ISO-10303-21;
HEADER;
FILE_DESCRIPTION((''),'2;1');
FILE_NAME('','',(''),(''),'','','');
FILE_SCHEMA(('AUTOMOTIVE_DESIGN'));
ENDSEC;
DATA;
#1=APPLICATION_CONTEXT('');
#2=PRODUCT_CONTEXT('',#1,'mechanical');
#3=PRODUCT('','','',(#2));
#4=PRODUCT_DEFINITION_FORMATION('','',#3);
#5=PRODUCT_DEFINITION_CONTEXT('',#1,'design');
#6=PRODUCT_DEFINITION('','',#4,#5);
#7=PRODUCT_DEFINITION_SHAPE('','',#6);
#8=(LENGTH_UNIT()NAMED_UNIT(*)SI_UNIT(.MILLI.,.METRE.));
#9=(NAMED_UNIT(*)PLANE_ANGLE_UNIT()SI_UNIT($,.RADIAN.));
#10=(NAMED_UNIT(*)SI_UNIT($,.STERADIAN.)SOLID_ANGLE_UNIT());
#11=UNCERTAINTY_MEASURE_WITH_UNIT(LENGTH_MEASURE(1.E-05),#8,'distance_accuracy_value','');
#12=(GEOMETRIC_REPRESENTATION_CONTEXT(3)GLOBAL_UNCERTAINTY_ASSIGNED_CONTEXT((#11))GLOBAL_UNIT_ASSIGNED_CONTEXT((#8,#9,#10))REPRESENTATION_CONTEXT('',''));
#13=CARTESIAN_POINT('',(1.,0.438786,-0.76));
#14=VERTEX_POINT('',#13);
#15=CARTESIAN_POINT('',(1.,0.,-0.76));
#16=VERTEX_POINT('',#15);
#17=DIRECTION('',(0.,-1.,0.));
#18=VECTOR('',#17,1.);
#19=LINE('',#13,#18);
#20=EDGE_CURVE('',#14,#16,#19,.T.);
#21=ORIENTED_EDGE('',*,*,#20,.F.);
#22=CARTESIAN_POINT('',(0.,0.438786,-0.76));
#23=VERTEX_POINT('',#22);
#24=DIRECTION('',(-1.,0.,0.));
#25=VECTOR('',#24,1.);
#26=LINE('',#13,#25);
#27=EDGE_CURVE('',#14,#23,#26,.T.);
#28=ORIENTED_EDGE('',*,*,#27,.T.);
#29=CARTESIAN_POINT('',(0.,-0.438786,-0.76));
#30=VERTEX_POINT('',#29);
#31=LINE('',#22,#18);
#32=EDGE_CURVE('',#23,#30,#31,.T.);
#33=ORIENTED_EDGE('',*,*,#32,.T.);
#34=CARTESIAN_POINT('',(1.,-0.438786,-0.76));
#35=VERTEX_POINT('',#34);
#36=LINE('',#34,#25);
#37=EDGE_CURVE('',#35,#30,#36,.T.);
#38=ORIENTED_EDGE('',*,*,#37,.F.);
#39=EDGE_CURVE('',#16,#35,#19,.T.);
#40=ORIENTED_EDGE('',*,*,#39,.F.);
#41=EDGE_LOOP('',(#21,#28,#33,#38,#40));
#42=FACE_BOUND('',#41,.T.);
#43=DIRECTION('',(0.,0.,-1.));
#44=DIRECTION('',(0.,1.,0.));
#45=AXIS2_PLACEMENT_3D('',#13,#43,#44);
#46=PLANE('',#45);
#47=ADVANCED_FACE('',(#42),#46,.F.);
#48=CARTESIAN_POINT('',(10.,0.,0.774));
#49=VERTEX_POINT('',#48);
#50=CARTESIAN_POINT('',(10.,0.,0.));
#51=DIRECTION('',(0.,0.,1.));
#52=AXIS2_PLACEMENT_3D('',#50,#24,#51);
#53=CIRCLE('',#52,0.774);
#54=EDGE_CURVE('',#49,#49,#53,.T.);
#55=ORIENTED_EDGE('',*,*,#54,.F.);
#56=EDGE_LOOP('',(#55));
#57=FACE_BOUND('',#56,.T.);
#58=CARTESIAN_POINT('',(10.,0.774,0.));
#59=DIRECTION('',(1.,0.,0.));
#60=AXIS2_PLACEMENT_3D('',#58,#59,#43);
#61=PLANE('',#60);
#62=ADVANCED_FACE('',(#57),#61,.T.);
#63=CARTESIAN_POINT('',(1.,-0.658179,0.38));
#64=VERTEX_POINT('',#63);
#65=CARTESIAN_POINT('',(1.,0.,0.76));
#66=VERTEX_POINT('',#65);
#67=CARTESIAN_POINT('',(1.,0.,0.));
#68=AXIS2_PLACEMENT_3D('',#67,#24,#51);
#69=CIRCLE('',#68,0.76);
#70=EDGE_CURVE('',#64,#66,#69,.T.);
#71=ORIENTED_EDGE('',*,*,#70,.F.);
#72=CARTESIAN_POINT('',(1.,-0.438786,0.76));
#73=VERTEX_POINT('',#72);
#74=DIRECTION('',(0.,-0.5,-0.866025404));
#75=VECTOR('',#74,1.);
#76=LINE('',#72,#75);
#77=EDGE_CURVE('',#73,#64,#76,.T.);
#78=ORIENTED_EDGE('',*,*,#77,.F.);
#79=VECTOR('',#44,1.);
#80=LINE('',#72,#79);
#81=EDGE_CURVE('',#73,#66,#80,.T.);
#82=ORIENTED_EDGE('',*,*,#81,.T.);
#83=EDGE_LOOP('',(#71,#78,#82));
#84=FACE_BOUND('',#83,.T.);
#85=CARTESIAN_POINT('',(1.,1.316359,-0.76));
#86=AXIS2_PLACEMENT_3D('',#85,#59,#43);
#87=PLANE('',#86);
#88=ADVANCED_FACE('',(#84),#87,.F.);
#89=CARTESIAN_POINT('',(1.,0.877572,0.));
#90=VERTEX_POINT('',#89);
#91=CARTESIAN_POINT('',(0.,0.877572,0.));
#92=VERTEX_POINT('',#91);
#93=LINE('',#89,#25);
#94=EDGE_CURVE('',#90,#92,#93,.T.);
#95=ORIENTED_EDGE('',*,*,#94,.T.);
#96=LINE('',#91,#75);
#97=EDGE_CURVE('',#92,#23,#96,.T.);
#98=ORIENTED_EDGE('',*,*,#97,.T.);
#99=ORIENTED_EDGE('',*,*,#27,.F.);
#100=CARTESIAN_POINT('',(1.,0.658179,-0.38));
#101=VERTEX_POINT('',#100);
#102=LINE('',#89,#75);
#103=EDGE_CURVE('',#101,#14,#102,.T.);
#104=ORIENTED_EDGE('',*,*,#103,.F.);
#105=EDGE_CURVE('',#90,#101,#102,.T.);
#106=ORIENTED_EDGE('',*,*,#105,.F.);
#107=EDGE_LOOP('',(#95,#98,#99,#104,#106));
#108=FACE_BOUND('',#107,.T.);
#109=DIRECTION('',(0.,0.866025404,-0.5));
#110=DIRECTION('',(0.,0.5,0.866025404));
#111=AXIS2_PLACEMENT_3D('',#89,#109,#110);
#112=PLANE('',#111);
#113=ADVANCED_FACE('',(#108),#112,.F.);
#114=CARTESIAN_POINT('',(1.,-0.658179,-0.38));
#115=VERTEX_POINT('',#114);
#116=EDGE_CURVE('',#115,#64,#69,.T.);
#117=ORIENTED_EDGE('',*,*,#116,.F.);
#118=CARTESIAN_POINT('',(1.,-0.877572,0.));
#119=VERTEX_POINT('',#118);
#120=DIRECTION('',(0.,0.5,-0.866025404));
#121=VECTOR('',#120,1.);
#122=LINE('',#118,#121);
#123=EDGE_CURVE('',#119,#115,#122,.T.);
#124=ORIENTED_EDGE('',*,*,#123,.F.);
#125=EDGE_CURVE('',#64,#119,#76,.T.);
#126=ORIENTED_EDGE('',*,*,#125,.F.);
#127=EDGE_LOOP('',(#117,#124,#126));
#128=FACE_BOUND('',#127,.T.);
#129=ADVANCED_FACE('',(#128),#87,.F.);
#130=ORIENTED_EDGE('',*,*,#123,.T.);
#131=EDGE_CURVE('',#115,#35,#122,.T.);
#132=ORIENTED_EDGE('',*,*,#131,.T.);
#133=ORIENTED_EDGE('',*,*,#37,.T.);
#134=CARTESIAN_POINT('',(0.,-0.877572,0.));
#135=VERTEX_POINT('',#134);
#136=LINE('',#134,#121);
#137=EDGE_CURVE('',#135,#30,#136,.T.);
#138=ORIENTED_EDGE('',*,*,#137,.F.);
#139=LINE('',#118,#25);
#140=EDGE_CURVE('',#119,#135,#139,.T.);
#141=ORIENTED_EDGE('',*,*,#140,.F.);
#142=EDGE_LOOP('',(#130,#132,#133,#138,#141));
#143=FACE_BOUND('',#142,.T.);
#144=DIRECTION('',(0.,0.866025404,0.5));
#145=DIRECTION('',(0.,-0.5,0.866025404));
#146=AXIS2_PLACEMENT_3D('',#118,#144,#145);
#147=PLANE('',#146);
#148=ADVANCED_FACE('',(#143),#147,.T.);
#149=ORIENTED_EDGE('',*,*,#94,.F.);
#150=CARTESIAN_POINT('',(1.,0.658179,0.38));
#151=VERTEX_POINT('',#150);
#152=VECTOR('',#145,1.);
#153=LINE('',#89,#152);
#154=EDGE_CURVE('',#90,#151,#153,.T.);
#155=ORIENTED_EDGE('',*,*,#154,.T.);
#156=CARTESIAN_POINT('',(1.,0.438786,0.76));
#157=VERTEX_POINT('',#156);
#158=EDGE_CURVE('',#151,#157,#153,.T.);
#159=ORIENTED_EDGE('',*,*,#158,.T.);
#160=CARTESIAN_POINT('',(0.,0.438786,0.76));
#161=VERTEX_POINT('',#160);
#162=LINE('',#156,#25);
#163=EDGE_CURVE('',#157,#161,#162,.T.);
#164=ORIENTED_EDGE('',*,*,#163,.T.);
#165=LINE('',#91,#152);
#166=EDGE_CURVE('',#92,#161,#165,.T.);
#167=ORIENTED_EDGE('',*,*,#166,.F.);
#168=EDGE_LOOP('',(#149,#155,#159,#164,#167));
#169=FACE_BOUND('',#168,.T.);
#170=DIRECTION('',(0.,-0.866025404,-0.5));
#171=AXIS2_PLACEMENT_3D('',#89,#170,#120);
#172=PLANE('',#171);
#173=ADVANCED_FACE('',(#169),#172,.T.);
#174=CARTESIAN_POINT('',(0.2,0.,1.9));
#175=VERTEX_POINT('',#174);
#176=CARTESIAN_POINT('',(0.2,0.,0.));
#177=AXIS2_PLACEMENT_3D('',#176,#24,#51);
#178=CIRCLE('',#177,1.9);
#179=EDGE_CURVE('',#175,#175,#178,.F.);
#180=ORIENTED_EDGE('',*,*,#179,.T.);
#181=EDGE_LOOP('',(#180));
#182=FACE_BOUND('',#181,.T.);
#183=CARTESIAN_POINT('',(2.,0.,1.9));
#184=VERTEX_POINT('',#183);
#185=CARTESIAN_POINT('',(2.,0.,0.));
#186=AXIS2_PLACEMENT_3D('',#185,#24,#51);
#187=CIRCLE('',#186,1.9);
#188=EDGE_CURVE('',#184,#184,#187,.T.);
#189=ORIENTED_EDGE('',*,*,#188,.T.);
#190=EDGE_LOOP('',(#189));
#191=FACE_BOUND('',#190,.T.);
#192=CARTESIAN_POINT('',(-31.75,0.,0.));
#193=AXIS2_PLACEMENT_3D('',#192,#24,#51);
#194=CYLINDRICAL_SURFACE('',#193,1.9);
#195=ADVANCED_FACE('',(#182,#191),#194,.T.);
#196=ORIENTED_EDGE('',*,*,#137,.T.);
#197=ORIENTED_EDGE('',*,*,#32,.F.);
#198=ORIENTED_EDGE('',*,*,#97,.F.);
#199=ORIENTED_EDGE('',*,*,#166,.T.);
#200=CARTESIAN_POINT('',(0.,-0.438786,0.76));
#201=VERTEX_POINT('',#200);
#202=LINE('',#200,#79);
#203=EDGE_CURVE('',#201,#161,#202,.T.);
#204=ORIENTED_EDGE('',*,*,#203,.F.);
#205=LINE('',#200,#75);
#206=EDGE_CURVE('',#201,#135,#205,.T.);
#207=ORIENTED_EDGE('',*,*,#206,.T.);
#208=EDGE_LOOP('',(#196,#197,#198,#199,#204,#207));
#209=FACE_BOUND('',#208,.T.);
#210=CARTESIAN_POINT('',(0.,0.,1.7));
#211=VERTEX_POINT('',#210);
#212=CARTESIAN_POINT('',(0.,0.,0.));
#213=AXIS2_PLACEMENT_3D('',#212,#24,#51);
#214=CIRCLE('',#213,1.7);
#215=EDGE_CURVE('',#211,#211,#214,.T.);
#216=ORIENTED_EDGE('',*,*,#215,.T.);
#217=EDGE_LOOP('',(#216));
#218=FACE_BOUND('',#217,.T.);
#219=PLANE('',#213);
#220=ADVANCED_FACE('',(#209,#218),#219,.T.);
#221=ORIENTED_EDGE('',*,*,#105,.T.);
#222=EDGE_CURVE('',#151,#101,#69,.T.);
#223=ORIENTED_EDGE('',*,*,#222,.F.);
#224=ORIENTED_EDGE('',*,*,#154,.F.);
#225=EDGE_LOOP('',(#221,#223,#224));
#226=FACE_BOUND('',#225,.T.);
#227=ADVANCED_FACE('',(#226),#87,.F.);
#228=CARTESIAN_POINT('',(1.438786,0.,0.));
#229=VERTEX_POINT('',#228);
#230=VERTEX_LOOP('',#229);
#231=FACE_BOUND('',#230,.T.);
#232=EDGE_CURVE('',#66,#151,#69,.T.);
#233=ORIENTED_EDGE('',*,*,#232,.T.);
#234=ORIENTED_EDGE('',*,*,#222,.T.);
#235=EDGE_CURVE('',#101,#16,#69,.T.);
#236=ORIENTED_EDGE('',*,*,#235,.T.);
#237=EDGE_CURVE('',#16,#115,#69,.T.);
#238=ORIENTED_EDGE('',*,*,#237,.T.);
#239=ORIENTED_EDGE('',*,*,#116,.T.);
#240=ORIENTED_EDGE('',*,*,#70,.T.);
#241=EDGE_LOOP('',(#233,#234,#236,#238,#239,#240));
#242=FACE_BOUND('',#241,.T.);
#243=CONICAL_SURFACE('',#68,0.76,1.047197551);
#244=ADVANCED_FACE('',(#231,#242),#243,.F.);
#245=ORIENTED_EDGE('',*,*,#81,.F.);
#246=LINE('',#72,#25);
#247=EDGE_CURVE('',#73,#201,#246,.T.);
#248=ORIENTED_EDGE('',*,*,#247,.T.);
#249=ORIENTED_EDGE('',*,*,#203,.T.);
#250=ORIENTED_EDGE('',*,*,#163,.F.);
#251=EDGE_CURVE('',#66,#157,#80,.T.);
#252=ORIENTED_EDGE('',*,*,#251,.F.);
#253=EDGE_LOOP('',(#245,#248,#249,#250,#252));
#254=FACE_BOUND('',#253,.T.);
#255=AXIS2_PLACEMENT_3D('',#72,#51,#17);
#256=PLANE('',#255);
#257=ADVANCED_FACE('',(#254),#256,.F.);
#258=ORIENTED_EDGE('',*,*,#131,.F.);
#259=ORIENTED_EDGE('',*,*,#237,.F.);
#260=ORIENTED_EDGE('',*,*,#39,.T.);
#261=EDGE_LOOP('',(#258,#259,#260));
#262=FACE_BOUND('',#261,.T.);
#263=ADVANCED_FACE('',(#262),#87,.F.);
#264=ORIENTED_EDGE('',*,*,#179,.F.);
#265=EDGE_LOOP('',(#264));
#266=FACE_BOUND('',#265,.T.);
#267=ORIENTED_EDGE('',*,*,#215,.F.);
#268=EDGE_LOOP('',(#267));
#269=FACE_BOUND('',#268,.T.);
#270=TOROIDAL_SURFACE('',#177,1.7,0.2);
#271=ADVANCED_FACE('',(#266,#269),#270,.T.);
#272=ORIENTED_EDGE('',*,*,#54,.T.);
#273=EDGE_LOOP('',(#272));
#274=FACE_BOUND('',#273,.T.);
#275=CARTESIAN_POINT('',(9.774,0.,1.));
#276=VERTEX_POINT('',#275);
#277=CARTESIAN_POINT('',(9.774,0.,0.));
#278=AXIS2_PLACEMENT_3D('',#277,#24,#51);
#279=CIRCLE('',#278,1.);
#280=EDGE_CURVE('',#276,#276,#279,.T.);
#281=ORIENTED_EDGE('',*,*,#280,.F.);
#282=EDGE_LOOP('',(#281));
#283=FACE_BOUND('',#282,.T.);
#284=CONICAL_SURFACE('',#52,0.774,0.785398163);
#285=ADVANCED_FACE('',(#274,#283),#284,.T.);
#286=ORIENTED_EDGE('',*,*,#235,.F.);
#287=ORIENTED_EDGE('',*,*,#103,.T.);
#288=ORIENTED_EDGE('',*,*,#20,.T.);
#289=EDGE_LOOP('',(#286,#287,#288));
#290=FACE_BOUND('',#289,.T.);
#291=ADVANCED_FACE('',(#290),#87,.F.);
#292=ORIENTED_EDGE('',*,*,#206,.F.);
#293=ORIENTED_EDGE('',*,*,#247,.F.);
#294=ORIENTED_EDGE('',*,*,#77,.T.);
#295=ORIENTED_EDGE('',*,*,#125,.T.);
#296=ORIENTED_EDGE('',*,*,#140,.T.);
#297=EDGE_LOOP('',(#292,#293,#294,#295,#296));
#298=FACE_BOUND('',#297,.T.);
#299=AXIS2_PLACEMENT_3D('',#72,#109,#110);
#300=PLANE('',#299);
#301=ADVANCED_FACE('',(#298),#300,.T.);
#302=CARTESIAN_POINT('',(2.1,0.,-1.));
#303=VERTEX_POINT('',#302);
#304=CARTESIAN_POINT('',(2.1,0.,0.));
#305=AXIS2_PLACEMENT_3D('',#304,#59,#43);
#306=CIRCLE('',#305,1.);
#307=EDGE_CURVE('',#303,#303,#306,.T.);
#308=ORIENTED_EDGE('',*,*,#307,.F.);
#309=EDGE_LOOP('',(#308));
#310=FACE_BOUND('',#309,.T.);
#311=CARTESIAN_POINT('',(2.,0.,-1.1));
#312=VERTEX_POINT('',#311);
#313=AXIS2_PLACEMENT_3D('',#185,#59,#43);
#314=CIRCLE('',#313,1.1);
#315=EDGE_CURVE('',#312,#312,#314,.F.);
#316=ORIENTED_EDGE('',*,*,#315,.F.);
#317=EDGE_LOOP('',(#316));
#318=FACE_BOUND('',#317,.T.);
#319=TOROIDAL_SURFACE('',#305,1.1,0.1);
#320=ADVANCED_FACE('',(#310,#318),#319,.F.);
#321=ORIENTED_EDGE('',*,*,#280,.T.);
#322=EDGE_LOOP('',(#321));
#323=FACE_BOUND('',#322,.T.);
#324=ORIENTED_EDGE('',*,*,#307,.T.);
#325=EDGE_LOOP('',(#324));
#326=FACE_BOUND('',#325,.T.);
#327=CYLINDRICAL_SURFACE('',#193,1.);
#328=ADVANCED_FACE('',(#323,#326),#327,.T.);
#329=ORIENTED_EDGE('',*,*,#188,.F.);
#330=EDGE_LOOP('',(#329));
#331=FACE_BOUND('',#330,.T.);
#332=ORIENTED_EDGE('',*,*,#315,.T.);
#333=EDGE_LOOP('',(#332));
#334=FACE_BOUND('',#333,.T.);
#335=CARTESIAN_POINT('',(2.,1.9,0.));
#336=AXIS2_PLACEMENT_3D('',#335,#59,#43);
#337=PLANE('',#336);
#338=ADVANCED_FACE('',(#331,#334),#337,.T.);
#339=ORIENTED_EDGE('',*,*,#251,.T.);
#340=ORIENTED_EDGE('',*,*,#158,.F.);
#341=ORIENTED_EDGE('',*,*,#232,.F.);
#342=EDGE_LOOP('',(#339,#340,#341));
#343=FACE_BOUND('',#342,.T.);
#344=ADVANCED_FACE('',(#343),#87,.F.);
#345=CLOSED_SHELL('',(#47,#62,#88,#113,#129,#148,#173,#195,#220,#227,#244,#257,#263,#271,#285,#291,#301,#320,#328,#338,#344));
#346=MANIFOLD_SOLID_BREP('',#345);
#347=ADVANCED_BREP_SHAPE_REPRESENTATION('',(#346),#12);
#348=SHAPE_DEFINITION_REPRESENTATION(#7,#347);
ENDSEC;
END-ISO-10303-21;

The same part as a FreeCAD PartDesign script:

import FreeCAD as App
import Part
import Sketcher
Q = App.Units.Quantity


def edges_at(feature, points):
    """Names of the edges that pass closest to the given points."""
    edges = feature.Shape.Edges
    near = lambda p: min(range(len(edges)), key=lambda i: edges[i].distToShape(Part.Vertex(*p))[0])
    return sorted({f"Edge{near(p) + 1}" for p in points})

doc = App.newDocument("Part")
body = doc.addObject("PartDesign::Body", "Body")

# Sketch on XY plane
sketch1 = doc.addObject("Sketcher::SketchObject", "Sketch")
body.addObject(sketch1)
sketch1.AttachmentSupport = (doc.XY_Plane, [""])
sketch1.MapMode = "FlatFace"
sketch1.addGeometry([
    Part.LineSegment(App.Vector(0, 1.9, 0), App.Vector(0, 0, 0)),  # 0
    Part.LineSegment(App.Vector(0, 0, 0), App.Vector(10, 0, 0)),  # 1
    Part.LineSegment(App.Vector(10, 0, 0), App.Vector(10, 0.774, 0)),  # 2
    Part.LineSegment(App.Vector(10, 0.774, 0), App.Vector(9.774, 1, 0)),  # 3
    Part.LineSegment(App.Vector(9.774, 1, 0), App.Vector(2, 1, 0)),  # 4
    Part.LineSegment(App.Vector(2, 1, 0), App.Vector(2, 1.9, 0)),  # 5
    Part.LineSegment(App.Vector(2, 1.9, 0), App.Vector(0, 1.9, 0)),  # 6
], False)
sketch1.addConstraint([
    Sketcher.Constraint("Coincident", 0, 2, 1, 1),
    Sketcher.Constraint("Coincident", 1, 2, 2, 1),
    Sketcher.Constraint("Coincident", 2, 2, 3, 1),
    Sketcher.Constraint("Coincident", 3, 2, 4, 1),
    Sketcher.Constraint("Coincident", 4, 2, 5, 1),
    Sketcher.Constraint("Coincident", 5, 2, 6, 1),
    Sketcher.Constraint("Coincident", 6, 2, 0, 1),
    Sketcher.Constraint("Vertical", 0),
    Sketcher.Constraint("Horizontal", 1),
    Sketcher.Constraint("Vertical", 2),
    Sketcher.Constraint("Horizontal", 4),
    Sketcher.Constraint("Vertical", 5),
    Sketcher.Constraint("Horizontal", 6),
    Sketcher.Constraint("Coincident", 0, 2, -1, 1),
    Sketcher.Constraint("DistanceX", 1, 1, 1, 2, 10.0),
    Sketcher.Constraint("DistanceX", 6, 2, 6, 1, 2.0),
    Sketcher.Constraint("Angle", 3, Q("135 deg")),
    Sketcher.Constraint("DistanceY", 0, 2, 0, 1, 1.9),
    Sketcher.Constraint("DistanceY", 5, 1, 5, 2, 0.9),
    Sketcher.Constraint("DistanceX", 4, 2, 4, 1, 7.774),
])
revolution = doc.addObject("PartDesign::Revolution", "Revolution")
body.addObject(revolution)
revolution.Profile = sketch1
revolution.ReferenceAxis = (sketch1, ["H_Axis"])
revolution.Angle = 360
doc.recompute()

fillet = doc.addObject("PartDesign::Fillet", "Fillet")
body.addObject(fillet)
fillet.Base = (revolution, edges_at(revolution, [(2, -1, 0)]))
fillet.Radius = 0.1
doc.recompute()

fillet2 = doc.addObject("PartDesign::Fillet", "Fillet001")
body.addObject(fillet2)
fillet2.Base = (fillet, edges_at(fillet, [(0, -1.9, 0)]))
fillet2.Radius = 0.2

# Sketch on XY plane
sketch2 = doc.addObject("Sketcher::SketchObject", "Sketch001")
body.addObject(sketch2)
sketch2.AttachmentSupport = (doc.XY_Plane, [""])
sketch2.MapMode = "FlatFace"
sketch2.addGeometry([
    Part.LineSegment(App.Vector(1, 0.76, 0), App.Vector(0, 0.76, 0)),
    Part.LineSegment(App.Vector(0, 0.76, 0), App.Vector(0, 0, 0)),
    Part.LineSegment(App.Vector(0, 0, 0), App.Vector(1.438786, 0, 0)),
    Part.LineSegment(App.Vector(1.438786, 0, 0), App.Vector(1, 0.76, 0)),
], False)
sketch2.addConstraint([
    Sketcher.Constraint("Coincident", 0, 2, 1, 1),
    Sketcher.Constraint("Coincident", 1, 2, 2, 1),
    Sketcher.Constraint("Coincident", 2, 2, 3, 1),
    Sketcher.Constraint("Coincident", 3, 2, 0, 1),
    Sketcher.Constraint("Horizontal", 0),
    Sketcher.Constraint("Vertical", 1),
    Sketcher.Constraint("Horizontal", 2),
    Sketcher.Constraint("Coincident", 1, 2, -1, 1),
    Sketcher.Constraint("DistanceX", 0, 2, 0, 1, 1.0),
    Sketcher.Constraint("Angle", 3, Q("120 deg")),
    Sketcher.Constraint("DistanceY", 1, 2, 1, 1, 0.76),
])
groove = doc.addObject("PartDesign::Groove", "Groove")
body.addObject(groove)
groove.Profile = sketch2
groove.ReferenceAxis = (sketch2, ["H_Axis"])
groove.Angle = 360

# Sketch on YZ plane
sketch3 = doc.addObject("Sketcher::SketchObject", "Sketch002")
body.addObject(sketch3)
sketch3.AttachmentSupport = (doc.YZ_Plane, [""])
sketch3.MapMode = "FlatFace"
sketch3.addGeometry([
    Part.LineSegment(App.Vector(0.877572, 0, 0), App.Vector(0.438786, -0.76, 0)),  # 0
    Part.LineSegment(App.Vector(0.438786, -0.76, 0), App.Vector(-0.438786, -0.76, 0)),  # 1
    Part.LineSegment(App.Vector(-0.438786, -0.76, 0), App.Vector(-0.877572, 0, 0)),  # 2
    Part.LineSegment(App.Vector(-0.877572, 0, 0), App.Vector(-0.438786, 0.76, 0)),  # 3
    Part.LineSegment(App.Vector(-0.438786, 0.76, 0), App.Vector(0.438786, 0.76, 0)),  # 4
    Part.LineSegment(App.Vector(0.438786, 0.76, 0), App.Vector(0.877572, 0, 0)),  # 5
], False)
sketch3.addConstraint([
    Sketcher.Constraint("Coincident", 0, 2, 1, 1),
    Sketcher.Constraint("Coincident", 1, 2, 2, 1),
    Sketcher.Constraint("Coincident", 2, 2, 3, 1),
    Sketcher.Constraint("Coincident", 3, 2, 4, 1),
    Sketcher.Constraint("Coincident", 4, 2, 5, 1),
    Sketcher.Constraint("Coincident", 5, 2, 0, 1),
    Sketcher.Constraint("Horizontal", 1),
    Sketcher.Constraint("Horizontal", 4),
    Sketcher.Constraint("Symmetric", 0, 2, 3, 2, -1, 1),
    Sketcher.Constraint("Symmetric", 2, 2, 5, 2, -1, 1),
    Sketcher.Constraint("PointOnObject", 2, 2, -1),
    Sketcher.Constraint("Parallel", 2, 5),
    Sketcher.Constraint("Vertical", 1, 2, 3, 2),
    Sketcher.Constraint("Angle", 0, Q("-120 deg")),
    Sketcher.Constraint("DistanceY", 0, 2, -1, 1, 0.76),
    Sketcher.Constraint("DistanceX", 1, 2, 1, 1, 0.877572),
])
pocket1 = doc.addObject("PartDesign::Pocket", "Pocket")
body.addObject(pocket1)
pocket1.Profile = sketch3
pocket1.Length = 1
pocket1.Reversed = True

doc.recompute()
